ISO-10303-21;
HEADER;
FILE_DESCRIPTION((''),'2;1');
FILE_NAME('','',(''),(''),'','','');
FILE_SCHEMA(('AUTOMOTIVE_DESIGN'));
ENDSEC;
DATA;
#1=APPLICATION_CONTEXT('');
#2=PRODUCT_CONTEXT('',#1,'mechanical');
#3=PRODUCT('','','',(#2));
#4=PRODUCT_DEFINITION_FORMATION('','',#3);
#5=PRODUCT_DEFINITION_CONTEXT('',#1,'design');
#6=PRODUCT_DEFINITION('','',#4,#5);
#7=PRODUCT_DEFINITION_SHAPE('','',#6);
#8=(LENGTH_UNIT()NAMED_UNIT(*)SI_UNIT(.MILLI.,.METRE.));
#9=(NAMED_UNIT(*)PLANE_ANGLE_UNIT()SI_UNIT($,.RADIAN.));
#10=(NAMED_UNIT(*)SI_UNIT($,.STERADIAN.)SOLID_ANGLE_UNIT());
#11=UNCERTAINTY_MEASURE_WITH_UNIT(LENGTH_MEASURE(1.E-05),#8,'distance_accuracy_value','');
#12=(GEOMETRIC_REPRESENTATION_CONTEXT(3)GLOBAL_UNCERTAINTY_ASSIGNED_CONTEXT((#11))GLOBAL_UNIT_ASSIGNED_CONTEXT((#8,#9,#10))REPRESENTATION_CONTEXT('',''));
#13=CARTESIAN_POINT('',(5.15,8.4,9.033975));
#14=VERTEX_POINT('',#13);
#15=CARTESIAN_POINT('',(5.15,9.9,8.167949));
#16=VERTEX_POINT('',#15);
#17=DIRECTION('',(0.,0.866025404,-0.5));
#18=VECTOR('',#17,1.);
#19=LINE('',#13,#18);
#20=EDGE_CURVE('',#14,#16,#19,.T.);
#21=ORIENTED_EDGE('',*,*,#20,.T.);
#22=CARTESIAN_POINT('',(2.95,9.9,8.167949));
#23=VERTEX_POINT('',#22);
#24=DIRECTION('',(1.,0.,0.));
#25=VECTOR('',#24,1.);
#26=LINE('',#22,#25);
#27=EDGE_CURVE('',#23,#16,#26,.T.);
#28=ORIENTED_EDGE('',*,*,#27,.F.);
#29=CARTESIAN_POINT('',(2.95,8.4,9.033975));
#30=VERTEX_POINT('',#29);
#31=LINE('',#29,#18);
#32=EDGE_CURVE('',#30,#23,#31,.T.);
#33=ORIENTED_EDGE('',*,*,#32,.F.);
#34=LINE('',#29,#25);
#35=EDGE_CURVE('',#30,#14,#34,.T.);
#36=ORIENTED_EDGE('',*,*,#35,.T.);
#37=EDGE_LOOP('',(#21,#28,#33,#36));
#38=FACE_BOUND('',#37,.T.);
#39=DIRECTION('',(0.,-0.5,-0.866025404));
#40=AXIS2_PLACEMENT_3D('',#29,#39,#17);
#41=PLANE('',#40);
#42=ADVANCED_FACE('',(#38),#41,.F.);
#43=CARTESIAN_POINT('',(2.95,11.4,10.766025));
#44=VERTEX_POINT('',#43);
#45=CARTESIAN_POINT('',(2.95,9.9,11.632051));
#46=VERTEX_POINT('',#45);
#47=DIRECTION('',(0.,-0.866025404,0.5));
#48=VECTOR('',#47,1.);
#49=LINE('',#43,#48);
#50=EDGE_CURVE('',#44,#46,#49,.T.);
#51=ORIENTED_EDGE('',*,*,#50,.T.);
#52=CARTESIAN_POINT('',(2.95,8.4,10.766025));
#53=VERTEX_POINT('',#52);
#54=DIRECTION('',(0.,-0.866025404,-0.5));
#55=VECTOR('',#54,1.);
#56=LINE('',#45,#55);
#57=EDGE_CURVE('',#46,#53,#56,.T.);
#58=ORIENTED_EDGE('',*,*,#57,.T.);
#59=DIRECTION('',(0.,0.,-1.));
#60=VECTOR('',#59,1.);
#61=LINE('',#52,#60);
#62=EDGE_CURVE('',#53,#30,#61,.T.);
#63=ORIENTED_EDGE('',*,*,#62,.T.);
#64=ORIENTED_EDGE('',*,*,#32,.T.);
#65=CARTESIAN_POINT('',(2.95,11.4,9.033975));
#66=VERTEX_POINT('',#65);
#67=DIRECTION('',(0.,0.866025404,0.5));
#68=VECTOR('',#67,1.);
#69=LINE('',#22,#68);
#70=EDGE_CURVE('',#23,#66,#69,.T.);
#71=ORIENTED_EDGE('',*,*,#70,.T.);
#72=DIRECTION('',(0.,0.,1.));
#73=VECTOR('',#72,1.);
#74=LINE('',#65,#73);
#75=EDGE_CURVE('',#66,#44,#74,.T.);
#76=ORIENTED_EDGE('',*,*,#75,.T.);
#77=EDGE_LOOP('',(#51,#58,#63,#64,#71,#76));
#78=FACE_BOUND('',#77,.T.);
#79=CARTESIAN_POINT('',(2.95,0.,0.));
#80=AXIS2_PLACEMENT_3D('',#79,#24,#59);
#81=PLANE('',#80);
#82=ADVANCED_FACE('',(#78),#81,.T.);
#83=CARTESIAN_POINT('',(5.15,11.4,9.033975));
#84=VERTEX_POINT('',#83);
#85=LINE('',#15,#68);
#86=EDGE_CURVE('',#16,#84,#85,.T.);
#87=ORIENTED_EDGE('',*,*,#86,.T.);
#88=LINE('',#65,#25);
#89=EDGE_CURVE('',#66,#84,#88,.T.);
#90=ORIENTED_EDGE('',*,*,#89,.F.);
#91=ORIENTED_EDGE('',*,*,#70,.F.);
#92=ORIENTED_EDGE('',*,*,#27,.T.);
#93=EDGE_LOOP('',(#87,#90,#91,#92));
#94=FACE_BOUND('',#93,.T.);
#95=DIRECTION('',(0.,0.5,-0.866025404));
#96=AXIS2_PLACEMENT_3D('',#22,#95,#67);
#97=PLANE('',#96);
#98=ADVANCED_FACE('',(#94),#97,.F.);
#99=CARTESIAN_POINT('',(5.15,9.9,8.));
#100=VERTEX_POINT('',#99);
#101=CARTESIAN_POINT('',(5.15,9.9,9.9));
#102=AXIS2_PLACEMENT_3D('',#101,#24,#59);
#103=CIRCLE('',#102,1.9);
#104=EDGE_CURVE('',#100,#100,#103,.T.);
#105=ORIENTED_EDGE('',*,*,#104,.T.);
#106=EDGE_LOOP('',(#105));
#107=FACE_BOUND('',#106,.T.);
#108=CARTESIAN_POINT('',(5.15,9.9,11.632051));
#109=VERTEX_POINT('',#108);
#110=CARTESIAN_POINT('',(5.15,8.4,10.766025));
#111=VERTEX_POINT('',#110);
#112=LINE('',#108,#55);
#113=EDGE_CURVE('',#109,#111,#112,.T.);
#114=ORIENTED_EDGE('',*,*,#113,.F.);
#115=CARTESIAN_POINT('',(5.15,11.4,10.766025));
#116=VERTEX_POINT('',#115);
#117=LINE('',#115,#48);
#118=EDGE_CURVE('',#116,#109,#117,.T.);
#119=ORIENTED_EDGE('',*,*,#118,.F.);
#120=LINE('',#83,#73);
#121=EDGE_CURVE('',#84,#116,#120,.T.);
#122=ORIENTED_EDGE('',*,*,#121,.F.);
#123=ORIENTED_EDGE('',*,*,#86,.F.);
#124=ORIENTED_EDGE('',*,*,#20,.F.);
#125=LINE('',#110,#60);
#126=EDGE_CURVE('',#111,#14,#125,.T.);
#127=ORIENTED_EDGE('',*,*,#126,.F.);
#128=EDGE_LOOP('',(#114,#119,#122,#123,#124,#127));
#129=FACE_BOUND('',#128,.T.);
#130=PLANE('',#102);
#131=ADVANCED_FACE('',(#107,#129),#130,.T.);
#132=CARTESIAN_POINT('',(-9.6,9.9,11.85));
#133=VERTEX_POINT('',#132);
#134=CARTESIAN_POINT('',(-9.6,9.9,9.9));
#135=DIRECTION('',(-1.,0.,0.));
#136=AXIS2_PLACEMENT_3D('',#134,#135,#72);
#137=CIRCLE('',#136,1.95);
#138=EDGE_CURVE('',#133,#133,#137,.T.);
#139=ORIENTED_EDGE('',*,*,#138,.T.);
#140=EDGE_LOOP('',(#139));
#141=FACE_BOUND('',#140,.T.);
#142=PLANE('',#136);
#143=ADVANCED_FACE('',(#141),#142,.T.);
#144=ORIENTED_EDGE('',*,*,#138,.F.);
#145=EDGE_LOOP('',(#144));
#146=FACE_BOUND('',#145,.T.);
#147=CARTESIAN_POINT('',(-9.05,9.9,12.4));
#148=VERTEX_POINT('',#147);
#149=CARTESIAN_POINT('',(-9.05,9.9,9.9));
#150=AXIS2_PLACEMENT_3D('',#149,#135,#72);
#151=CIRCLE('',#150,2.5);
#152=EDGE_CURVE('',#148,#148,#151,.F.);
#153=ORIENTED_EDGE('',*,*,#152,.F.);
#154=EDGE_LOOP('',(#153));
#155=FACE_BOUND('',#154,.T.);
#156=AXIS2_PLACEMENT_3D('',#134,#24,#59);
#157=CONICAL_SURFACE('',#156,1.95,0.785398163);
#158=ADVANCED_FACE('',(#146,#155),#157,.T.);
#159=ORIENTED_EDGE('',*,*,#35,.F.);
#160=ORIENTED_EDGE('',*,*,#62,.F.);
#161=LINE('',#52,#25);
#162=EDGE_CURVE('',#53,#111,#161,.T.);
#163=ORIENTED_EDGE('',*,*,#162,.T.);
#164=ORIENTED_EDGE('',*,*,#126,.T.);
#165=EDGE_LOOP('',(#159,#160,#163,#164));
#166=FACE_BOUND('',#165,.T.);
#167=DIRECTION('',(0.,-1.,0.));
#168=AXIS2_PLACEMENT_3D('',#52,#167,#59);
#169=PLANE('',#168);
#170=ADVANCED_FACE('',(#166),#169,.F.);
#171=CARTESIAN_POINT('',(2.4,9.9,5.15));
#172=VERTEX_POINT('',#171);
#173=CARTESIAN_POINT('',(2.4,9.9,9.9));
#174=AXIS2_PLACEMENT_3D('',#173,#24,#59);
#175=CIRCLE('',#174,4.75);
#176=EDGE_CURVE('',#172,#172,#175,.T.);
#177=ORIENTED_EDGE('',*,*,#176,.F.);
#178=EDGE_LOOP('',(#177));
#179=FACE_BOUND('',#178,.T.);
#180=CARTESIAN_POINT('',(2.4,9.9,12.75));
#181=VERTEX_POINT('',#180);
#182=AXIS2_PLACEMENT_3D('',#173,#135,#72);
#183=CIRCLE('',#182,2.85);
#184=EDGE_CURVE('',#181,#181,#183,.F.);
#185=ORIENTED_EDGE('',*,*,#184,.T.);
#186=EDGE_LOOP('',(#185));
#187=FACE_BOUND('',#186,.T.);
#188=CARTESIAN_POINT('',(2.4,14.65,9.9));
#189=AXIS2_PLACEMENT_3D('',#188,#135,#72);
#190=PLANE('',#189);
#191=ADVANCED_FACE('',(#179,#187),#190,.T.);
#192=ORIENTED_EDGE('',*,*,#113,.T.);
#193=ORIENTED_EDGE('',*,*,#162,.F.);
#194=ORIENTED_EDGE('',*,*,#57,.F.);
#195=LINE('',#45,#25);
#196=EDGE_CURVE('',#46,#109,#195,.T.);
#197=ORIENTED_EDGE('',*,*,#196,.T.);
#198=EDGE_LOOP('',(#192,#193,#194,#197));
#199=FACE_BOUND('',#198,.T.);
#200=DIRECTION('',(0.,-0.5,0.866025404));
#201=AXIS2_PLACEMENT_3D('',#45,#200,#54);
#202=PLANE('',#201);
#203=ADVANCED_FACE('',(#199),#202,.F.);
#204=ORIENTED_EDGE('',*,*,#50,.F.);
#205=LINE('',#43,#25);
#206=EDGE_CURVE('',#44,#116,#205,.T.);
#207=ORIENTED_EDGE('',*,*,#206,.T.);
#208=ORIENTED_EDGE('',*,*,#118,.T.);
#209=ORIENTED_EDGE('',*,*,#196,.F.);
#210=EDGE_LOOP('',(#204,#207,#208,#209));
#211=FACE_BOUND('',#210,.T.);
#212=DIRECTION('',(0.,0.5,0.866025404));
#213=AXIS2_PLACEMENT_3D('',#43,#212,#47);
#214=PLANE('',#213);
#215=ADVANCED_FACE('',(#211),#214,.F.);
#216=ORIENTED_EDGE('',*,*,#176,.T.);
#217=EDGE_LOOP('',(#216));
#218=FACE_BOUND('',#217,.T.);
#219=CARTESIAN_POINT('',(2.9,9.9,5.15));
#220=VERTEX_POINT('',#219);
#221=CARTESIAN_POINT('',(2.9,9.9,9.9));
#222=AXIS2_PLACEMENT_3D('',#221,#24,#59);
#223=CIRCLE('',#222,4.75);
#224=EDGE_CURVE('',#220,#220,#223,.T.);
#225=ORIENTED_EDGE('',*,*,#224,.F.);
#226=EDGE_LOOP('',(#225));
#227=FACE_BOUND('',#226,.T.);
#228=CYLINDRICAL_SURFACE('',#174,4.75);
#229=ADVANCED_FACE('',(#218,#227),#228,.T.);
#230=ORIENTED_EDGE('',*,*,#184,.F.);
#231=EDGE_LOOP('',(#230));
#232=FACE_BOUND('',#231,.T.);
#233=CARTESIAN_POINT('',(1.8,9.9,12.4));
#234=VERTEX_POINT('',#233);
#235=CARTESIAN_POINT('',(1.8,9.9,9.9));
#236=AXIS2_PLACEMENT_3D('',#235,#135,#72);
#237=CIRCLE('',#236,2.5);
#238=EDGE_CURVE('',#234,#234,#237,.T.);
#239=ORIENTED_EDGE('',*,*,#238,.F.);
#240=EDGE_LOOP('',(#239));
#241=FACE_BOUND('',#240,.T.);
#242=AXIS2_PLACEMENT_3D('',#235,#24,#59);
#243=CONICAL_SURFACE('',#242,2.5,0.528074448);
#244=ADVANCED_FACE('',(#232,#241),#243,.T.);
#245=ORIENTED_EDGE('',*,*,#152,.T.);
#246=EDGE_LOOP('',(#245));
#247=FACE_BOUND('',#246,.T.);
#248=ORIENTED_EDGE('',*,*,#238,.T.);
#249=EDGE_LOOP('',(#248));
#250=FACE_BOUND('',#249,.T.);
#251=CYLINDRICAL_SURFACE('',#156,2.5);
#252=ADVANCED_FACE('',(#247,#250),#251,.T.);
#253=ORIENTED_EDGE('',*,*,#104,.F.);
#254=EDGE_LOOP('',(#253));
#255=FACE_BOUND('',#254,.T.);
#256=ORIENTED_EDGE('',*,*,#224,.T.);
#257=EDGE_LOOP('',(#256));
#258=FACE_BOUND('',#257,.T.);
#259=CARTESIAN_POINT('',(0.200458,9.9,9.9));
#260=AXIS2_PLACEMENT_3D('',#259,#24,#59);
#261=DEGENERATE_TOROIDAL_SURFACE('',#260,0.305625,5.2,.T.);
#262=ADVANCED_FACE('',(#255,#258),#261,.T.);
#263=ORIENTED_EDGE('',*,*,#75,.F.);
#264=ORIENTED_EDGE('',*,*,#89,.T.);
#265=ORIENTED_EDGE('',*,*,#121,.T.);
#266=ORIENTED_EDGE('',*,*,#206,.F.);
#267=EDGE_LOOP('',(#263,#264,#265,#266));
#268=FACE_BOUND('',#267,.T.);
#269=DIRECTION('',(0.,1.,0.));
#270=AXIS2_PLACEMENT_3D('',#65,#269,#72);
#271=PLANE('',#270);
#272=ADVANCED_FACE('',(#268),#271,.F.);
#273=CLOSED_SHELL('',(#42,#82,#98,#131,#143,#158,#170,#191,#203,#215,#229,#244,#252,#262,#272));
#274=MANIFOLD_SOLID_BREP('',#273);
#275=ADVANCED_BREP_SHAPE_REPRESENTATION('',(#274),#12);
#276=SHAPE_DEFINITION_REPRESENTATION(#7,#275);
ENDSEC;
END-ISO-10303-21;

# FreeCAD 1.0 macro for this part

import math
import FreeCAD as App
import Part
import Sketcher
Q = App.Units.Quantity


def edges_at(feature, points):
    """Names of the edges that pass closest to the given points."""
    edges = feature.Shape.Edges
    near = lambda p: min(range(len(edges)), key=lambda i: edges[i].distToShape(Part.Vertex(*p))[0])
    return sorted({f"Edge{near(p) + 1}" for p in points})

doc = App.newDocument("Part")
body = doc.addObject("PartDesign::Body", "Body")

# Sketch on XY plane
sketch1 = body.newObject("Sketcher::SketchObject", "Sketch")
sketch1.AttachmentSupport = (doc.getObject("XY_Plane"), [""])
sketch1.MapMode = "FlatFace"
sketch1.AttachmentOffset = App.Placement(App.Vector(0, 0, 9.9), App.Rotation())
sketch1.addGeometry(Part.LineSegment(App.Vector(2.4, 14.65, 0), App.Vector(2.4, 9.9, 0)), False)
sketch1.addGeometry(Part.LineSegment(App.Vector(2.4, 9.9, 0), App.Vector(5.15, 9.9, 0)), False)
sketch1.addGeometry(Part.LineSegment(App.Vector(5.15, 9.9, 0), App.Vector(5.15, 11.8, 0)), False)
sketch1.addGeometry(Part.ArcOfCircle(Part.Circle(App.Vector(0.2, 10.21, 0), App.Vector(0, 0, 1), 5.2), math.radians(18), math.radians(59)), False)
sketch1.addGeometry(Part.LineSegment(App.Vector(2.9, 14.65, 0), App.Vector(2.4, 14.65, 0)), False)
sketch1.addGeometry(Part.LineSegment(App.Vector(0.2, 9.9, 0), App.Vector(5.15, 9.9, 0)), True)  # axis
sketch1.addConstraint(Sketcher.Constraint("Coincident", 0, 2, 1, 1))
sketch1.addConstraint(Sketcher.Constraint("Coincident", 1, 2, 2, 1))
sketch1.addConstraint(Sketcher.Constraint("Coincident", 2, 2, 3, 1))
sketch1.addConstraint(Sketcher.Constraint("Coincident", 3, 2, 4, 1))
sketch1.addConstraint(Sketcher.Constraint("Coincident", 4, 2, 0, 1))
sketch1.addConstraint(Sketcher.Constraint("Vertical", 0))
sketch1.addConstraint(Sketcher.Constraint("Horizontal", 1))
sketch1.addConstraint(Sketcher.Constraint("Vertical", 2))
sketch1.addConstraint(Sketcher.Constraint("Horizontal", 4))
sketch1.addConstraint(Sketcher.Constraint("Horizontal", 5))
sketch1.addConstraint(Sketcher.Constraint("Coincident", 5, 2, 1, 2))
sketch1.addConstraint(Sketcher.Constraint("Vertical", 3, 3, 5, 1))
sketch1.addConstraint(Sketcher.Constraint("Radius", 3, 5.2))
sketch1.addConstraint(Sketcher.Constraint("DistanceX", 4, 2, 4, 1, 0.5))
sketch1.addConstraint(Sketcher.Constraint("DistanceY", 2, 1, 2, 2, 1.9))
sketch1.addConstraint(Sketcher.Constraint("DistanceX", 1, 1, 1, 2, 2.75))
sketch1.addConstraint(Sketcher.Constraint("DistanceY", 0, 2, 0, 1, 4.75))
sketch1.addConstraint(Sketcher.Constraint("DistanceX", -1, 1, 0, 2, 2.4))
sketch1.addConstraint(Sketcher.Constraint("DistanceY", -1, 1, 0, 2, 9.9))
revolution = body.newObject("PartDesign::Revolution", "Revolution")
revolution.Profile = sketch1
revolution.ReferenceAxis = (sketch1, ["Axis0"])
revolution.Angle = 360

# Sketch on YZ plane
sketch2 = body.newObject("Sketcher::SketchObject", "Sketch001")
sketch2.AttachmentSupport = (doc.getObject("YZ_Plane"), [""])
sketch2.MapMode = "FlatFace"
sketch2.AttachmentOffset = App.Placement(App.Vector(0, 0, 2.4), App.Rotation())
sketch2.addGeometry(Part.Circle(App.Vector(9.9, 9.9, 0), App.Vector(0, 0, 1), 2.5), False)
sketch2.addConstraint(Sketcher.Constraint("Diameter", 0, 5.0))
sketch2.addConstraint(Sketcher.Constraint("DistanceX", -1, 1, 0, 3, 9.9))
sketch2.addConstraint(Sketcher.Constraint("DistanceY", -1, 1, 0, 3, 9.9))
pad1 = body.newObject("PartDesign::Pad", "Pad")
pad1.Profile = sketch2
pad1.Length = 12
pad1.Reversed = True

# Sketch on YZ plane
sketch3 = body.newObject("Sketcher::SketchObject", "Sketch002")
sketch3.AttachmentSupport = (doc.getObject("YZ_Plane"), [""])
sketch3.MapMode = "FlatFace"
sketch3.AttachmentOffset = App.Placement(App.Vector(0, 0, 5.15), App.Rotation())
sketch3.addGeometry(Part.LineSegment(App.Vector(9.9, 11.6, 0), App.Vector(8.4, 10.8, 0)), False)
sketch3.addGeometry(Part.LineSegment(App.Vector(8.4, 10.8, 0), App.Vector(8.4, 9, 0)), False)
sketch3.addGeometry(Part.LineSegment(App.Vector(8.4, 9, 0), App.Vector(9.9, 8.2, 0)), False)
sketch3.addGeometry(Part.LineSegment(App.Vector(9.9, 8.2, 0), App.Vector(11.4, 9, 0)), False)
sketch3.addGeometry(Part.LineSegment(App.Vector(11.4, 9, 0), App.Vector(11.4, 10.8, 0)), False)
sketch3.addGeometry(Part.LineSegment(App.Vector(11.4, 10.8, 0), App.Vector(9.9, 11.6, 0)), False)
sketch3.addConstraint(Sketcher.Constraint("Coincident", 0, 2, 1, 1))
sketch3.addConstraint(Sketcher.Constraint("Coincident", 1, 2, 2, 1))
sketch3.addConstraint(Sketcher.Constraint("Coincident", 2, 2, 3, 1))
sketch3.addConstraint(Sketcher.Constraint("Coincident", 3, 2, 4, 1))
sketch3.addConstraint(Sketcher.Constraint("Coincident", 4, 2, 5, 1))
sketch3.addConstraint(Sketcher.Constraint("Coincident", 5, 2, 0, 1))
sketch3.addConstraint(Sketcher.Constraint("Vertical", 1))
sketch3.addConstraint(Sketcher.Constraint("Vertical", 4))
sketch3.addConstraint(Sketcher.Constraint("Parallel", 0, 3))
sketch3.addConstraint(Sketcher.Constraint("Parallel", 2, 5))
sketch3.addConstraint(Sketcher.Constraint("Horizontal", 1, 2, 3, 2))
sketch3.addConstraint(Sketcher.Constraint("Horizontal", 0, 2, 4, 2))
sketch3.addConstraint(Sketcher.Constraint("Vertical", 2, 2, 5, 2))
sketch3.addConstraint(Sketcher.Constraint("Angle", 0, Q("-150 deg")))
sketch3.addConstraint(Sketcher.Constraint("DistanceX", 1, 2, 3, 2, 3.0))
sketch3.addConstraint(Sketcher.Constraint("DistanceX", -1, 1, 0, 2, 8.4))
sketch3.addConstraint(Sketcher.Constraint("DistanceY", 1, 2, 1, 1, 1.732051))
sketch3.addConstraint(Sketcher.Constraint("DistanceY", -1, 1, 2, 2, 8.167949))
pocket1 = body.newObject("PartDesign::Pocket", "Pocket")
pocket1.Profile = sketch3
pocket1.Length = 2.2
doc.recompute()

chamfer = body.newObject("PartDesign::Chamfer", "Chamfer")
chamfer.Base = (pocket1, edges_at(pocket1, [(-9.6, 9.9, 7.4)]))
chamfer.Size = 0.55
doc.recompute()

chamfer2 = body.newObject("PartDesign::Chamfer", "Chamfer001")
chamfer2.Base = (chamfer, edges_at(chamfer, [(2.4, 9.9, 7.4)]))
chamfer2.ChamferType = "Two distances"
chamfer2.Size = 0.35
chamfer2.Size2 = 0.6
chamfer2.FlipDirection = True

doc.recompute()
